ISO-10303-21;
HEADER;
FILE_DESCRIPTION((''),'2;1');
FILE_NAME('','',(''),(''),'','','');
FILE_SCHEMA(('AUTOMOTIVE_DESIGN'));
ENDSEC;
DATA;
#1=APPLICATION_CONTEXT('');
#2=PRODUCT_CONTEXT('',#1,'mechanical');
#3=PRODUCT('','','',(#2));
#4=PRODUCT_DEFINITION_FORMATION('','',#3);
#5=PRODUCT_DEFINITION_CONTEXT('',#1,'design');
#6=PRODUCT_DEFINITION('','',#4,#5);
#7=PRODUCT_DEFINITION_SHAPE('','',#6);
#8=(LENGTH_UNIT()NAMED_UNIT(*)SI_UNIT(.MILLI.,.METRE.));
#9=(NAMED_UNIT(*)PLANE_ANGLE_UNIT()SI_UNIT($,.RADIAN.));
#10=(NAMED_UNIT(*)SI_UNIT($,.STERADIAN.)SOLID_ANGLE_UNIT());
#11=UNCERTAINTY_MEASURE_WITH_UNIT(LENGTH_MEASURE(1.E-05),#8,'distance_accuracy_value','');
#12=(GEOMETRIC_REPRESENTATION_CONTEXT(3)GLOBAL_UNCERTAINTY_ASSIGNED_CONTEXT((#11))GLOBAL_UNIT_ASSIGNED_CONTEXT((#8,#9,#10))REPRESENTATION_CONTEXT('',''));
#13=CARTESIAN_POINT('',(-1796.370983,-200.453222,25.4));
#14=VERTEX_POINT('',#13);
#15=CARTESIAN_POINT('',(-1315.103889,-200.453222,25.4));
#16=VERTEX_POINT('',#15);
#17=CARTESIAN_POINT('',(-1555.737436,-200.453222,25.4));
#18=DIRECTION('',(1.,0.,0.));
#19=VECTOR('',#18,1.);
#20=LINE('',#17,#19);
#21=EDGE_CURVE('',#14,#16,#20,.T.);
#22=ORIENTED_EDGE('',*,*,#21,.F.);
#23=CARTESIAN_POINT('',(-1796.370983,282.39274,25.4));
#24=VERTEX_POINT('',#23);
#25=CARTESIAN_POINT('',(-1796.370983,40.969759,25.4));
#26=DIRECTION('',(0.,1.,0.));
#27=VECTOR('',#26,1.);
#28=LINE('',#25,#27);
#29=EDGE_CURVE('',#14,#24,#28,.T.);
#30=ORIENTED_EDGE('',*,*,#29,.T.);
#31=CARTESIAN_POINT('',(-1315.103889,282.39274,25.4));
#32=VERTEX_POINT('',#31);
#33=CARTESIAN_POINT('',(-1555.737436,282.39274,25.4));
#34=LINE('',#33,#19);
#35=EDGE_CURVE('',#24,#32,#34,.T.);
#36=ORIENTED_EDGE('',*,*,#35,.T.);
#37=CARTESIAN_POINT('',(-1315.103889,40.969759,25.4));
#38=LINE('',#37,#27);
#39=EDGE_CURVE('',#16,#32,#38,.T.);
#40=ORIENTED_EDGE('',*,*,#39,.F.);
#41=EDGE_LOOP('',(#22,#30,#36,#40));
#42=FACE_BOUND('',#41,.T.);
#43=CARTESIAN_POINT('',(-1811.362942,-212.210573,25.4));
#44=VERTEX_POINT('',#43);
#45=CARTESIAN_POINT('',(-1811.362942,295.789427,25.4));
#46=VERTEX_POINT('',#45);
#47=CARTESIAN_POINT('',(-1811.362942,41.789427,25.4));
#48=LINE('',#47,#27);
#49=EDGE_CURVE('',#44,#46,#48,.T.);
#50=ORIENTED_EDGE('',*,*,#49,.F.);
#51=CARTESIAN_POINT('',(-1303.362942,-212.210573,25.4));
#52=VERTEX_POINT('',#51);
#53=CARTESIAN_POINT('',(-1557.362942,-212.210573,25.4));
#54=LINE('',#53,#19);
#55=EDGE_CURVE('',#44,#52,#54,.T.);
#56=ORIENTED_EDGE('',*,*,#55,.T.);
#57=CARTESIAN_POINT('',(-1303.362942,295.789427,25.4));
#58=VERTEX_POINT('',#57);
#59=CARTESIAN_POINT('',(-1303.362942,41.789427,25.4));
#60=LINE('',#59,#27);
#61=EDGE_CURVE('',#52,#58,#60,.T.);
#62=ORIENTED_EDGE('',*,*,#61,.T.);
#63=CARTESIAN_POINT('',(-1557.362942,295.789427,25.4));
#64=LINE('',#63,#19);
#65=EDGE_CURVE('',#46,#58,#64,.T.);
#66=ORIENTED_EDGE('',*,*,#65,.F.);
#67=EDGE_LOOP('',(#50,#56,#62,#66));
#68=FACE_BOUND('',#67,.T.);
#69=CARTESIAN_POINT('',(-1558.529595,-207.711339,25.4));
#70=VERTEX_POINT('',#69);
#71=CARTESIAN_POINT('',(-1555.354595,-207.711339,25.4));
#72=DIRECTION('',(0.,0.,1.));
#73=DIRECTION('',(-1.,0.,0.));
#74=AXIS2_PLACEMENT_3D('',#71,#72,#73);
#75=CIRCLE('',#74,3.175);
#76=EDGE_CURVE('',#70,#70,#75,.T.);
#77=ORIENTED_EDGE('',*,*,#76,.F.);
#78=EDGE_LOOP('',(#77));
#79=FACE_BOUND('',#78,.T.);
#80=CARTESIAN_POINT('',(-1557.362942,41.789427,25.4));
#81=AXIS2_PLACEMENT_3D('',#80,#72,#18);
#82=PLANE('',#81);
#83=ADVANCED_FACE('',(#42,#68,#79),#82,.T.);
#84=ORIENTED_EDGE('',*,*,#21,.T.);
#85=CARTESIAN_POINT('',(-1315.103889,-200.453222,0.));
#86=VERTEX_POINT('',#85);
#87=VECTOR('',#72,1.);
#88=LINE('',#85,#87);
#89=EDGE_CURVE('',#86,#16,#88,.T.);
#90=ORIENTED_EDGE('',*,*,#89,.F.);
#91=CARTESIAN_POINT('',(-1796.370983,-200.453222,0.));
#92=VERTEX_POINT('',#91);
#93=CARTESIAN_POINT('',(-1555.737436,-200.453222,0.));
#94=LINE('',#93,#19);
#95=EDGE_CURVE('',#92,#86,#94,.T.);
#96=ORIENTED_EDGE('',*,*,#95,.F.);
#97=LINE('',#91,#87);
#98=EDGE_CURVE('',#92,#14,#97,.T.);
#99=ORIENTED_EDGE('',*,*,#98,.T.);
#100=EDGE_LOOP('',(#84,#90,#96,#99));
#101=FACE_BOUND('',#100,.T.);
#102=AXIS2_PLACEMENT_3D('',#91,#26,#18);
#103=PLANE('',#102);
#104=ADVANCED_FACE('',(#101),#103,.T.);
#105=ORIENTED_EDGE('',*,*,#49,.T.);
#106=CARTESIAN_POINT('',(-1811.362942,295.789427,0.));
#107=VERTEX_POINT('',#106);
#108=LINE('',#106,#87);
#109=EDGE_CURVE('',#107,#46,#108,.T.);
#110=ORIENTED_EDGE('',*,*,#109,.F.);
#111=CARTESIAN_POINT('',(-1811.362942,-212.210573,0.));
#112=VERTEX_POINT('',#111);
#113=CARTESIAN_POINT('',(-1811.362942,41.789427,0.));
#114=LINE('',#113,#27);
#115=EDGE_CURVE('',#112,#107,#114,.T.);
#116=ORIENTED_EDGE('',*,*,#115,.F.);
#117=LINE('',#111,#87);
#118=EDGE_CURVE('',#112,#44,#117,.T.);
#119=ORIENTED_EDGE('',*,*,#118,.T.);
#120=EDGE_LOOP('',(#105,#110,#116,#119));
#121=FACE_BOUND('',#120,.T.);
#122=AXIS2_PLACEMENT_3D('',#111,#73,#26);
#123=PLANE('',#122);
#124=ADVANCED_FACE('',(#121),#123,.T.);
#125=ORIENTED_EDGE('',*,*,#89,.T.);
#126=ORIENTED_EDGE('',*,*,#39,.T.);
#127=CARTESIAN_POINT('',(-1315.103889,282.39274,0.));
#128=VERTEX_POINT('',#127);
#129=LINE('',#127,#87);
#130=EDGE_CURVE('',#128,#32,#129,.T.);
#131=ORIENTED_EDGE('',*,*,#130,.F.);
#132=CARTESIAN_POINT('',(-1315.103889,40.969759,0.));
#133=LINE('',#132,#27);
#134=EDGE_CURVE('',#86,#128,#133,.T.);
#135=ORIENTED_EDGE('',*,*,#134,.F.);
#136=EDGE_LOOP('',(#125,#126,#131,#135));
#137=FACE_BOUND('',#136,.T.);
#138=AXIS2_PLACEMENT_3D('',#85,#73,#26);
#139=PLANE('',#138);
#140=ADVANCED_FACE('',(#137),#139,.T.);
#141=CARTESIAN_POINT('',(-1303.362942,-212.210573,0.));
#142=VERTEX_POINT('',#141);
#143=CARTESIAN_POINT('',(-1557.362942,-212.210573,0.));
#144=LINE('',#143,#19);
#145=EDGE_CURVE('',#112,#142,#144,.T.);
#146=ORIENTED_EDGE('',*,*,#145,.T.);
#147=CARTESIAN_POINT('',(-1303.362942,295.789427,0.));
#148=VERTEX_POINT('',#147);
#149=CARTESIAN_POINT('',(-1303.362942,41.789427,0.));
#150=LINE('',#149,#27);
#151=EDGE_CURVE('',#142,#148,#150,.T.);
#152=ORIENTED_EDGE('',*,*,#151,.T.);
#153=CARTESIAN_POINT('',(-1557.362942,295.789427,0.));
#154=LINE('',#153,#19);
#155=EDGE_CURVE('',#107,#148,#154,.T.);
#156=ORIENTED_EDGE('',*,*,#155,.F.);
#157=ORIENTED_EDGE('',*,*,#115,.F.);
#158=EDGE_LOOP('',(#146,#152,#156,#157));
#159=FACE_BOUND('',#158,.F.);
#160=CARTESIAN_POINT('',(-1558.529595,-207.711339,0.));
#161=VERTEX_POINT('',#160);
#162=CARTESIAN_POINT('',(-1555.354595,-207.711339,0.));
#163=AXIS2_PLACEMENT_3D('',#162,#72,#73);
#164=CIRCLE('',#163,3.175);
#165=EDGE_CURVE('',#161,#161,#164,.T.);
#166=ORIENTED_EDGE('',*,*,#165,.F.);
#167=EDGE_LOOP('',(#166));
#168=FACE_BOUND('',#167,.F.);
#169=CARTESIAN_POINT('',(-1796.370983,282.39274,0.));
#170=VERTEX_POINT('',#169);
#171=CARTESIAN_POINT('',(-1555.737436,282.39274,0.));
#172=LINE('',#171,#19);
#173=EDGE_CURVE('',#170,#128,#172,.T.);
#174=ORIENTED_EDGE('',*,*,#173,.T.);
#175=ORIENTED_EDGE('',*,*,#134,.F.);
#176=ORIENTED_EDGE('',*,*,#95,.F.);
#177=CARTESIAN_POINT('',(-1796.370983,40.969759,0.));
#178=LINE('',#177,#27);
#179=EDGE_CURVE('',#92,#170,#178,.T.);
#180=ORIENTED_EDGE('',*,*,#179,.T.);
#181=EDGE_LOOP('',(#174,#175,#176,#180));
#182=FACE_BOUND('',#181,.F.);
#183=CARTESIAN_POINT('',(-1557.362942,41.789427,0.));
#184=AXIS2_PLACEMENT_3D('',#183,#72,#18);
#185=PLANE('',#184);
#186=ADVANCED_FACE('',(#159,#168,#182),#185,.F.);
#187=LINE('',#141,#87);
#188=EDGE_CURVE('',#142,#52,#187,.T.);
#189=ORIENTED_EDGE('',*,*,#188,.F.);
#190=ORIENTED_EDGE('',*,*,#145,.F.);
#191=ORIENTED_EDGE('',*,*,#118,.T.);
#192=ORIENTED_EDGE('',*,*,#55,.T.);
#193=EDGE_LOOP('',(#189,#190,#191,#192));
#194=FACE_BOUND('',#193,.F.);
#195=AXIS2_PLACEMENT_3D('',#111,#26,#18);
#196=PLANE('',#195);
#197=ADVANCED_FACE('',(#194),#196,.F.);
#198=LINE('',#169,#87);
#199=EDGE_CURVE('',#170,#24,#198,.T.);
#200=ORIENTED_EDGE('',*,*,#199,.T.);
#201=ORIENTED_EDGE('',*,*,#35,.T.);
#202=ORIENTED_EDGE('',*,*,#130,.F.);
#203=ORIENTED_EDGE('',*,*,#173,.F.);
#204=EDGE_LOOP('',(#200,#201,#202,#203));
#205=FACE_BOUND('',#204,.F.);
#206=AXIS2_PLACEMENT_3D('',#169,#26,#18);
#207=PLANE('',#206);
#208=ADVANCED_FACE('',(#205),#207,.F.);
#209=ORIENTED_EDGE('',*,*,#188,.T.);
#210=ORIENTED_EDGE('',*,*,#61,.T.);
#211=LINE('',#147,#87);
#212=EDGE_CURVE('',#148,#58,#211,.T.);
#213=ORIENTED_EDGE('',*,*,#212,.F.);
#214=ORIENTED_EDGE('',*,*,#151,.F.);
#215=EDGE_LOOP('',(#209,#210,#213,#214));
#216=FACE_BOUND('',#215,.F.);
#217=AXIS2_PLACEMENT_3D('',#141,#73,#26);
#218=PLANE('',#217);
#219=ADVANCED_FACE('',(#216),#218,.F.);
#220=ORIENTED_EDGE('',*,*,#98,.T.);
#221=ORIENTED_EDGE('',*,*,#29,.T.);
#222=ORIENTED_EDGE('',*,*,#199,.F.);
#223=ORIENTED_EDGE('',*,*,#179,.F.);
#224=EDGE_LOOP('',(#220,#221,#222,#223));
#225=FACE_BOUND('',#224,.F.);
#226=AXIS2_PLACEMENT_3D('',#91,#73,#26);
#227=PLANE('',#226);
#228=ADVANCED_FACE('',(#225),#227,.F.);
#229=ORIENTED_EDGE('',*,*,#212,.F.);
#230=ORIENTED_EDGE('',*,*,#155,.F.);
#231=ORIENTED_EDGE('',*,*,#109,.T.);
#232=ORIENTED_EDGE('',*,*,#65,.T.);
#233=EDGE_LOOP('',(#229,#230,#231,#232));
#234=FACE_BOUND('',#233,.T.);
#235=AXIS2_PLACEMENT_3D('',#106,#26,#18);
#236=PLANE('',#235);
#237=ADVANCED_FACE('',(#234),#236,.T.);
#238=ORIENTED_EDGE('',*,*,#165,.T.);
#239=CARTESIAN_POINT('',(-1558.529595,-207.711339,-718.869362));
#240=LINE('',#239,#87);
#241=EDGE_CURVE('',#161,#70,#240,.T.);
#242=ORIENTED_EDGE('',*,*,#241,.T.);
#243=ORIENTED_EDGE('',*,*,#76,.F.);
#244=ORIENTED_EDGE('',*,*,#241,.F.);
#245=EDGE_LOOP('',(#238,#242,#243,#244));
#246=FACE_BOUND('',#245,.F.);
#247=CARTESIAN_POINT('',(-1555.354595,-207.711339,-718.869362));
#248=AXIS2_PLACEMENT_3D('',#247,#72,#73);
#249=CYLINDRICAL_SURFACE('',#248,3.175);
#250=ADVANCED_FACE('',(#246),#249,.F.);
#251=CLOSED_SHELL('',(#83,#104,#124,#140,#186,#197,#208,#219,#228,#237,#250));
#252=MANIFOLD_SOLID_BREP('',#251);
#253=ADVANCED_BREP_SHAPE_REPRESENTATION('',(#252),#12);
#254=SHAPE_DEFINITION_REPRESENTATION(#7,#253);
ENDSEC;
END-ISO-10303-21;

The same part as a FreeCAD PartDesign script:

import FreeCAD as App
import Part
import Sketcher
from FreeCAD import Vector
Q = App.Units.Quantity

doc = App.newDocument("Part")
params = doc.addObject("Spreadsheet::Sheet", "Params")
for row, (alias, value) in enumerate([
    ("sketch1_width", "1 in"),
    ("sketch1_height", "10 in"),
    ("pad1_length", "0.2 in"),
    ("sketch2_width", "20 in"),
    ("pad2_length", "1 in"),
    ("sketch3_diameter", "0.25 in"),
    ("hole_diameter", "0.25 in"),
], start=1):
    params.set(f"A{row}", alias)
    params.set(f"B{row}", "=" + value)
    params.setAlias(f"B{row}", alias)

body = doc.addObject("PartDesign::Body", "Body")

# Sketch on XY plane
sketch1 = body.newObject("Sketcher::SketchObject", "Sketch")
sketch1.AttachmentSupport = (doc.getObject("XY_Plane"), [""])
sketch1.MapMode = "FlatFace"
sketch1.addGeometry(Part.LineSegment(Vector(-307, 141, 0), Vector(-307, -113, 0)), False)
sketch1.addGeometry(Part.LineSegment(Vector(-307, -113, 0), Vector(-281, -113, 0)), False)
sketch1.addGeometry(Part.LineSegment(Vector(-281, -113, 0), Vector(-281, 141, 0)), False)
sketch1.addGeometry(Part.LineSegment(Vector(-281, 141, 0), Vector(-307, 141, 0)), False)
sketch1.addConstraint(Sketcher.Constraint("Coincident", 0, 2, 1, 1))
sketch1.addConstraint(Sketcher.Constraint("Coincident", 1, 2, 2, 1))
sketch1.addConstraint(Sketcher.Constraint("Coincident", 2, 2, 3, 1))
sketch1.addConstraint(Sketcher.Constraint("Coincident", 3, 2, 0, 1))
sketch1.addConstraint(Sketcher.Constraint("Vertical", 0))
sketch1.addConstraint(Sketcher.Constraint("Horizontal", 1))
sketch1.addConstraint(Sketcher.Constraint("Vertical", 2))
sketch1.addConstraint(Sketcher.Constraint("Horizontal", 3))
sketch1.addConstraint(Sketcher.Constraint("DistanceX", 1, 1, 1, 2, Q("1 in")))
sketch1.addConstraint(Sketcher.Constraint("DistanceY", 0, 2, 0, 1, Q("10 in")))
sketch1.addConstraint(Sketcher.Constraint("DistanceY", 0, 2, -1, 1, Q("112.688999 mm")))
sketch1.addConstraint(Sketcher.Constraint("DistanceX", 0, 2, -1, 1, Q("306.529619 mm")))
sketch1.setExpression("Constraints[8]", "Params.sketch1_width")
sketch1.setExpression("Constraints[9]", "Params.sketch1_height")
pad1 = body.newObject("PartDesign::Pad", "Pad")
pad1.Profile = sketch1
pad1.setExpression("Length", "Params.pad1_length")
body2 = doc.addObject("PartDesign::Body", "Body001")

# Sketch on XY plane
sketch2 = body2.newObject("Sketcher::SketchObject", "Sketch001")
sketch2.AttachmentSupport = (doc.getObject("XY_Plane001"), [""])
sketch2.MapMode = "FlatFace"
sketch2.addGeometry(Part.LineSegment(Vector(-1811, 296, 0), Vector(-1811, -212, 0)), False)
sketch2.addGeometry(Part.LineSegment(Vector(-1811, -212, 0), Vector(-1303, -212, 0)), False)
sketch2.addGeometry(Part.LineSegment(Vector(-1303, -212, 0), Vector(-1303, 296, 0)), False)
sketch2.addGeometry(Part.LineSegment(Vector(-1303, 296, 0), Vector(-1811, 296, 0)), False)
sketch2.addGeometry(Part.LineSegment(Vector(-1315, -200, 0), Vector(-1796, -200, 0)), False)
sketch2.addGeometry(Part.LineSegment(Vector(-1796, -200, 0), Vector(-1796, 282, 0)), False)
sketch2.addGeometry(Part.LineSegment(Vector(-1796, 282, 0), Vector(-1315, 282, 0)), False)
sketch2.addGeometry(Part.LineSegment(Vector(-1315, 282, 0), Vector(-1315, -200, 0)), False)
sketch2.addConstraint(Sketcher.Constraint("Coincident", 0, 2, 1, 1))
sketch2.addConstraint(Sketcher.Constraint("Coincident", 1, 2, 2, 1))
sketch2.addConstraint(Sketcher.Constraint("Coincident", 2, 2, 3, 1))
sketch2.addConstraint(Sketcher.Constraint("Coincident", 3, 2, 0, 1))
sketch2.addConstraint(Sketcher.Constraint("Coincident", 4, 2, 5, 1))
sketch2.addConstraint(Sketcher.Constraint("Coincident", 5, 2, 6, 1))
sketch2.addConstraint(Sketcher.Constraint("Coincident", 6, 2, 7, 1))
sketch2.addConstraint(Sketcher.Constraint("Coincident", 7, 2, 4, 1))
sketch2.addConstraint(Sketcher.Constraint("Vertical", 0))
sketch2.addConstraint(Sketcher.Constraint("Horizontal", 1))
sketch2.addConstraint(Sketcher.Constraint("Vertical", 2))
sketch2.addConstraint(Sketcher.Constraint("Horizontal", 3))
sketch2.addConstraint(Sketcher.Constraint("Horizontal", 4))
sketch2.addConstraint(Sketcher.Constraint("Vertical", 5))
sketch2.addConstraint(Sketcher.Constraint("Horizontal", 6))
sketch2.addConstraint(Sketcher.Constraint("Vertical", 7))
sketch2.addConstraint(Sketcher.Constraint("Equal", 3, 0))
sketch2.addConstraint(Sketcher.Constraint("DistanceX", 1, 1, 1, 2, Q("20 in")))
sketch2.addConstraint(Sketcher.Constraint("DistanceX", 4, 2, 4, 1, Q("481.267095 mm")))
sketch2.addConstraint(Sketcher.Constraint("DistanceY", 5, 1, 5, 2, Q("482.845962 mm")))
sketch2.addConstraint(Sketcher.Constraint("DistanceY", 4, 2, -1, 1, Q("200.453222 mm")))
sketch2.addConstraint(Sketcher.Constraint("DistanceX", 6, 2, -1, 1, Q("1315.103889 mm")))
sketch2.addConstraint(Sketcher.Constraint("DistanceX", 0, 2, 4, 2, Q("14.991959 mm")))
sketch2.addConstraint(Sketcher.Constraint("DistanceY", 0, 2, 4, 2, Q("11.757351 mm")))
sketch2.setExpression("Constraints[17]", "Params.sketch2_width")
pad2 = body2.newObject("PartDesign::Pad", "Pad001")
pad2.Profile = sketch2
pad2.setExpression("Length", "Params.pad2_length")

# Sketch on XY plane
sketch3 = body2.newObject("Sketcher::SketchObject", "Sketch002")
sketch3.AttachmentSupport = (doc.getObject("XY_Plane001"), [""])
sketch3.MapMode = "FlatFace"
sketch3.addGeometry(Part.Circle(Vector(-1555.4, -207.7, 0), Vector(0, 0, 1), 3.2), False)
sketch3.addConstraint(Sketcher.Constraint("Diameter", 0, Q("0.25 in")))
sketch3.addConstraint(Sketcher.Constraint("DistanceY", 0, 3, -1, 1, Q("207.711339 mm")))
sketch3.addConstraint(Sketcher.Constraint("DistanceX", 0, 3, -1, 1, Q("1555.354595 mm")))
sketch3.setExpression("Constraints[0]", "Params.sketch3_diameter")
doc.recompute()
hole = body2.newObject("PartDesign::Hole", "Hole")
hole.Profile = sketch3
hole.ThreadType = "None"
hole.setExpression("Diameter", "Params.hole_diameter")
hole.DepthType = "ThroughAll"
hole.Reversed = True
body.Visibility = False

doc.recompute()
